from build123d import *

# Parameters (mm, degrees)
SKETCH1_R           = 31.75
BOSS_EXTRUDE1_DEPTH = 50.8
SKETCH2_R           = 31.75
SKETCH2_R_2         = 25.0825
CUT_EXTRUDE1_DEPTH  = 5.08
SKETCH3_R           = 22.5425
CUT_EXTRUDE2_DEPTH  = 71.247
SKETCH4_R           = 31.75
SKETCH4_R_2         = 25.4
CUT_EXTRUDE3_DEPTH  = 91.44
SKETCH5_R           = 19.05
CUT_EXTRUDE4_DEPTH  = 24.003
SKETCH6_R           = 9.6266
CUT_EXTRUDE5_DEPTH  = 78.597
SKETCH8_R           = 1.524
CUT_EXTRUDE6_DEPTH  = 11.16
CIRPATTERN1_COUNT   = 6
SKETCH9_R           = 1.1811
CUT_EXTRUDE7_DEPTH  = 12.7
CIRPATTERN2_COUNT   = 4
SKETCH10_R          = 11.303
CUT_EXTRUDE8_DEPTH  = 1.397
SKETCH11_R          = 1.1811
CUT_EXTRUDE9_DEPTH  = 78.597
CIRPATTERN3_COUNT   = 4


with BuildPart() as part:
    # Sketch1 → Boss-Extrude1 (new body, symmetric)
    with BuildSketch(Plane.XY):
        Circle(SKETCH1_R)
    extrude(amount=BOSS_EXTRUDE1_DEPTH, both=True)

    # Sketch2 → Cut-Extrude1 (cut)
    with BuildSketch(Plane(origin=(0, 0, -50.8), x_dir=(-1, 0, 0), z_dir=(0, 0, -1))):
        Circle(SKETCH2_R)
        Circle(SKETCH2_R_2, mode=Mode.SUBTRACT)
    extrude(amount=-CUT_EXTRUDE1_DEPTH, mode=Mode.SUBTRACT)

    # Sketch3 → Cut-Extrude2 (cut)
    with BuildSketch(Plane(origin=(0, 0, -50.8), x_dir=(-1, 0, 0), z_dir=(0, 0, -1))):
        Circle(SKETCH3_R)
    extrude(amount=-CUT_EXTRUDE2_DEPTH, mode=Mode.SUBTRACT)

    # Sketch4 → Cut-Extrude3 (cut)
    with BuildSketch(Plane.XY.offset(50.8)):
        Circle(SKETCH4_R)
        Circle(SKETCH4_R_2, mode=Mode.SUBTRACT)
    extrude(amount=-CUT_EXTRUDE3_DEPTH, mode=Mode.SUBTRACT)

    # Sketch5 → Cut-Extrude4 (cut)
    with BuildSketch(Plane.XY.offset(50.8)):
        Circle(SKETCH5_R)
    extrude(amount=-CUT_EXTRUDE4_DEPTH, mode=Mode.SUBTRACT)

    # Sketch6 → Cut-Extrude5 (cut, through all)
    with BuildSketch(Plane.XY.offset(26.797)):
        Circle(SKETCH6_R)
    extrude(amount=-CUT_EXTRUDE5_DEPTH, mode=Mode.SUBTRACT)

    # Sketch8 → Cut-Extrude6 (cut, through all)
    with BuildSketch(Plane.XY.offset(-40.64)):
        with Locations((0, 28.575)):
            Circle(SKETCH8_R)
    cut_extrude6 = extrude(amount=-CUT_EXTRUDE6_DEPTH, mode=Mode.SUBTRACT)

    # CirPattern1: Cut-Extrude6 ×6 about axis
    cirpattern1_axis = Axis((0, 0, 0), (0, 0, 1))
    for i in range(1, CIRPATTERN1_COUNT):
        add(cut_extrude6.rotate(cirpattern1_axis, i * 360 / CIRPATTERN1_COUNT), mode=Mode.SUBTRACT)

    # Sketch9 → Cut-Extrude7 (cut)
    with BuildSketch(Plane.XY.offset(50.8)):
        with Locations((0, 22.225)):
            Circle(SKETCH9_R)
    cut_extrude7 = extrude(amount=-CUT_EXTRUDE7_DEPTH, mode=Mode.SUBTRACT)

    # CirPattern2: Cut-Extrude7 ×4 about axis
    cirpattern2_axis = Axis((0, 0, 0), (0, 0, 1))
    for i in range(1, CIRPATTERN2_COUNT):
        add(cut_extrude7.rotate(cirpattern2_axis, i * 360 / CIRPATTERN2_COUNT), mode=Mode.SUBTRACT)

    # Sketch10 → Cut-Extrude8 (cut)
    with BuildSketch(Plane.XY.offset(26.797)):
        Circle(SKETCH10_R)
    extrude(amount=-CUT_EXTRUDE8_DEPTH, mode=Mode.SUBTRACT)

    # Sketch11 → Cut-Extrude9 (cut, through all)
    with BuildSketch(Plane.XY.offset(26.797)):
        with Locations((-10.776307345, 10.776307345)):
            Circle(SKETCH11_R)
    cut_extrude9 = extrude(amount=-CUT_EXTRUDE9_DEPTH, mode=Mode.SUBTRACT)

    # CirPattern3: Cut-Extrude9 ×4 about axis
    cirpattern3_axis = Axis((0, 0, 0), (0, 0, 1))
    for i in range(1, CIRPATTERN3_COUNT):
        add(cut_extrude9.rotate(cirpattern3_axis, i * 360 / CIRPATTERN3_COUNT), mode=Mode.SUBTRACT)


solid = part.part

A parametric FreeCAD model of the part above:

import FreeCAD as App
import Part
import Sketcher

V = App.Vector
Q = App.Units.Quantity

doc = App.newDocument("Part")
body = doc.addObject("PartDesign::Body", "Body")

# Sketch on XY plane
sketch1 = doc.addObject("Sketcher::SketchObject", "Sketch")
body.addObject(sketch1)
sketch1.AttachmentSupport = (doc.XY_Plane, [""])
sketch1.MapMode = "FlatFace"
sketch1.addGeometry(Part.Circle(V(0, 0, 0), V(0, 0, 1), 31.75), False)
sketch1.addConstraint([
    Sketcher.Constraint("Coincident", 0, 3, -1, 1),
    Sketcher.Constraint("Diameter", 0, Q("2.5 in")),
])
pad1 = doc.addObject("PartDesign::Pad", "Pad")
body.addObject(pad1)
pad1.Profile = sketch1
pad1.Length = Q("4 in")
pad1.Midplane = True

# Sketch on XY plane
sketch2 = doc.addObject("Sketcher::SketchObject", "Sketch001")
body.addObject(sketch2)
sketch2.AttachmentSupport = (doc.XY_Plane, [""])
sketch2.MapMode = "FlatFace"
sketch2.AttachmentOffset = App.Placement(V(0, 0, -2 * 25.4), App.Rotation())
sketch2.addGeometry([
    Part.Circle(V(0, 0, 0), V(0, 0, 1), 31.75),
    Part.Circle(V(0, 0, 0), V(0, 0, 1), 25.0825),
], False)
sketch2.addConstraint([
    Sketcher.Constraint("Coincident", 0, 3, -1, 1),
    Sketcher.Constraint("Coincident", 1, 3, -1, 1),
    Sketcher.Constraint("Diameter", 0, Q("2.5 in")),
    Sketcher.Constraint("Diameter", 1, Q("1.975 in")),
])
pocket1 = doc.addObject("PartDesign::Pocket", "Pocket")
body.addObject(pocket1)
pocket1.Profile = sketch2
pocket1.Length = Q("0.2 in")
pocket1.Reversed = True

# Sketch on XY plane
sketch3 = doc.addObject("Sketcher::SketchObject", "Sketch002")
body.addObject(sketch3)
sketch3.AttachmentSupport = (doc.XY_Plane, [""])
sketch3.MapMode = "FlatFace"
sketch3.AttachmentOffset = App.Placement(V(0, 0, -2 * 25.4), App.Rotation())
sketch3.addGeometry(Part.Circle(V(0, 0, 0), V(0, 0, 1), 22.5425), False)
sketch3.addConstraint([
    Sketcher.Constraint("Coincident", 0, 3, -1, 1),
    Sketcher.Constraint("Diameter", 0, Q("1.775 in")),
])
pocket2 = doc.addObject("PartDesign::Pocket", "Pocket001")
body.addObject(pocket2)
pocket2.Profile = sketch3
pocket2.Length = Q("2.805 in")
pocket2.Reversed = True

# Sketch on XY plane
sketch4 = doc.addObject("Sketcher::SketchObject", "Sketch003")
body.addObject(sketch4)
sketch4.AttachmentSupport = (doc.XY_Plane, [""])
sketch4.MapMode = "FlatFace"
sketch4.AttachmentOffset = App.Placement(V(0, 0, 2 * 25.4), App.Rotation())
sketch4.addGeometry([
    Part.Circle(V(0, 0, 0), V(0, 0, 1), 31.75),
    Part.Circle(V(0, 0, 0), V(0, 0, 1), 25.4),
], False)
sketch4.addConstraint([
    Sketcher.Constraint("Coincident", 0, 3, -1, 1),
    Sketcher.Constraint("Coincident", 1, 3, -1, 1),
    Sketcher.Constraint("Diameter", 1, Q("2 in")),
    Sketcher.Constraint("Diameter", 0, Q("2.5 in")),
])
pocket3 = doc.addObject("PartDesign::Pocket", "Pocket002")
body.addObject(pocket3)
pocket3.Profile = sketch4
pocket3.Length = Q("3.6 in")

# Sketch on XY plane
sketch5 = doc.addObject("Sketcher::SketchObject", "Sketch004")
body.addObject(sketch5)
sketch5.AttachmentSupport = (doc.XY_Plane, [""])
sketch5.MapMode = "FlatFace"
sketch5.AttachmentOffset = App.Placement(V(0, 0, 2 * 25.4), App.Rotation())
sketch5.addGeometry(Part.Circle(V(0, 0, 0), V(0, 0, 1), 19.05), False)
sketch5.addConstraint([
    Sketcher.Constraint("Coincident", 0, 3, -1, 1),
    Sketcher.Constraint("Diameter", 0, Q("1.5 in")),
])
pocket4 = doc.addObject("PartDesign::Pocket", "Pocket003")
body.addObject(pocket4)
pocket4.Profile = sketch5
pocket4.Length = Q("0.945 in")

# Sketch on XY plane
sketch6 = doc.addObject("Sketcher::SketchObject", "Sketch005")
body.addObject(sketch6)
sketch6.AttachmentSupport = (doc.XY_Plane, [""])
sketch6.MapMode = "FlatFace"
sketch6.AttachmentOffset = App.Placement(V(0, 0, 1.055 * 25.4), App.Rotation())
sketch6.addGeometry(Part.Circle(V(0, 0, 0), V(0, 0, 1), 9.6266), False)
sketch6.addConstraint([
    Sketcher.Constraint("Coincident", 0, 3, -1, 1),
    Sketcher.Constraint("Diameter", 0, Q("0.758 in")),
])
pocket5 = doc.addObject("PartDesign::Pocket", "Pocket004")
body.addObject(pocket5)
pocket5.Profile = sketch6
pocket5.Type = "ThroughAll"

# Sketch on XY plane
sketch7 = doc.addObject("Sketcher::SketchObject", "Sketch006")
body.addObject(sketch7)
sketch7.AttachmentSupport = (doc.XY_Plane, [""])
sketch7.MapMode = "FlatFace"
sketch7.AttachmentOffset = App.Placement(V(0, 0, -1.6 * 25.4), App.Rotation())
sketch7.addGeometry(Part.Circle(V(0, 28.575, 0), V(0, 0, 1), 1.524), False)
sketch7.addConstraint([
    Sketcher.Constraint("PointOnObject", 0, 3, -2),
    Sketcher.Constraint("Diameter", 0, Q("0.12 in")),
    Sketcher.Constraint("DistanceY", -1, 1, 0, 3, Q("1.125 in")),
])
pocket6 = doc.addObject("PartDesign::Pocket", "Pocket005")
body.addObject(pocket6)
pocket6.Profile = sketch7
pocket6.Type = "ThroughAll"
doc.recompute()

polarpattern = doc.addObject("PartDesign::PolarPattern", "PolarPattern")
body.addObject(polarpattern)
polarpattern.Originals = [pocket6]
polarpattern.Axis = (doc.Z_Axis, [""])
polarpattern.Angle = 360
polarpattern.Occurrences = 6
body.Tip = polarpattern

# Sketch on XY plane
sketch8 = doc.addObject("Sketcher::SketchObject", "Sketch007")
body.addObject(sketch8)
sketch8.AttachmentSupport = (doc.XY_Plane, [""])
sketch8.MapMode = "FlatFace"
sketch8.AttachmentOffset = App.Placement(V(0, 0, 2 * 25.4), App.Rotation())
sketch8.addGeometry(Part.Circle(V(0, 22.225, 0), V(0, 0, 1), 1.1811), False)
sketch8.addConstraint([
    Sketcher.Constraint("PointOnObject", 0, 3, -2),
    Sketcher.Constraint("Diameter", 0, Q("0.093 in")),
    Sketcher.Constraint("DistanceY", -1, 1, 0, 3, Q("0.875 in")),
])
pocket7 = doc.addObject("PartDesign::Pocket", "Pocket006")
body.addObject(pocket7)
pocket7.Profile = sketch8
pocket7.Length = Q("0.5 in")
doc.recompute()

polarpattern2 = doc.addObject("PartDesign::PolarPattern", "PolarPattern001")
body.addObject(polarpattern2)
polarpattern2.Originals = [pocket7]
polarpattern2.Axis = (doc.Z_Axis, [""])
polarpattern2.Angle = 360
polarpattern2.Occurrences = 4
body.Tip = polarpattern2

# Sketch on XY plane
sketch9 = doc.addObject("Sketcher::SketchObject", "Sketch008")
body.addObject(sketch9)
sketch9.AttachmentSupport = (doc.XY_Plane, [""])
sketch9.MapMode = "FlatFace"
sketch9.AttachmentOffset = App.Placement(V(0, 0, 1.055 * 25.4), App.Rotation())
sketch9.addGeometry(Part.Circle(V(0, 0, 0), V(0, 0, 1), 11.303), False)
sketch9.addConstraint([
    Sketcher.Constraint("Coincident", 0, 3, -1, 1),
    Sketcher.Constraint("Diameter", 0, Q("0.89 in")),
])
pocket8 = doc.addObject("PartDesign::Pocket", "Pocket007")
body.addObject(pocket8)
pocket8.Profile = sketch9
pocket8.Length = Q("0.055 in")

# Sketch on XY plane
sketch10 = doc.addObject("Sketcher::SketchObject", "Sketch009")
body.addObject(sketch10)
sketch10.AttachmentSupport = (doc.XY_Plane, [""])
sketch10.MapMode = "FlatFace"
sketch10.AttachmentOffset = App.Placement(V(0, 0, 1.055 * 25.4), App.Rotation())
sketch10.addGeometry(Part.Circle(V(-10.776307, 10.776307, 0), V(0, 0, 1), 1.1811), False)
sketch10.addConstraint([
    Sketcher.Constraint("Diameter", 0, Q("0.093 in")),
    Sketcher.Constraint("DistanceX", 0, 3, -1, 1, 10.776307),
    Sketcher.Constraint("DistanceY", -1, 1, 0, 3, 10.776307),
])
pocket9 = doc.addObject("PartDesign::Pocket", "Pocket008")
body.addObject(pocket9)
pocket9.Profile = sketch10
pocket9.Type = "ThroughAll"
doc.recompute()

polarpattern3 = doc.addObject("PartDesign::PolarPattern", "PolarPattern002")
body.addObject(polarpattern3)
polarpattern3.Originals = [pocket9]
polarpattern3.Axis = (doc.Z_Axis, [""])
polarpattern3.Angle = 360
polarpattern3.Occurrences = 4
body.Tip = polarpattern3

doc.recompute()
